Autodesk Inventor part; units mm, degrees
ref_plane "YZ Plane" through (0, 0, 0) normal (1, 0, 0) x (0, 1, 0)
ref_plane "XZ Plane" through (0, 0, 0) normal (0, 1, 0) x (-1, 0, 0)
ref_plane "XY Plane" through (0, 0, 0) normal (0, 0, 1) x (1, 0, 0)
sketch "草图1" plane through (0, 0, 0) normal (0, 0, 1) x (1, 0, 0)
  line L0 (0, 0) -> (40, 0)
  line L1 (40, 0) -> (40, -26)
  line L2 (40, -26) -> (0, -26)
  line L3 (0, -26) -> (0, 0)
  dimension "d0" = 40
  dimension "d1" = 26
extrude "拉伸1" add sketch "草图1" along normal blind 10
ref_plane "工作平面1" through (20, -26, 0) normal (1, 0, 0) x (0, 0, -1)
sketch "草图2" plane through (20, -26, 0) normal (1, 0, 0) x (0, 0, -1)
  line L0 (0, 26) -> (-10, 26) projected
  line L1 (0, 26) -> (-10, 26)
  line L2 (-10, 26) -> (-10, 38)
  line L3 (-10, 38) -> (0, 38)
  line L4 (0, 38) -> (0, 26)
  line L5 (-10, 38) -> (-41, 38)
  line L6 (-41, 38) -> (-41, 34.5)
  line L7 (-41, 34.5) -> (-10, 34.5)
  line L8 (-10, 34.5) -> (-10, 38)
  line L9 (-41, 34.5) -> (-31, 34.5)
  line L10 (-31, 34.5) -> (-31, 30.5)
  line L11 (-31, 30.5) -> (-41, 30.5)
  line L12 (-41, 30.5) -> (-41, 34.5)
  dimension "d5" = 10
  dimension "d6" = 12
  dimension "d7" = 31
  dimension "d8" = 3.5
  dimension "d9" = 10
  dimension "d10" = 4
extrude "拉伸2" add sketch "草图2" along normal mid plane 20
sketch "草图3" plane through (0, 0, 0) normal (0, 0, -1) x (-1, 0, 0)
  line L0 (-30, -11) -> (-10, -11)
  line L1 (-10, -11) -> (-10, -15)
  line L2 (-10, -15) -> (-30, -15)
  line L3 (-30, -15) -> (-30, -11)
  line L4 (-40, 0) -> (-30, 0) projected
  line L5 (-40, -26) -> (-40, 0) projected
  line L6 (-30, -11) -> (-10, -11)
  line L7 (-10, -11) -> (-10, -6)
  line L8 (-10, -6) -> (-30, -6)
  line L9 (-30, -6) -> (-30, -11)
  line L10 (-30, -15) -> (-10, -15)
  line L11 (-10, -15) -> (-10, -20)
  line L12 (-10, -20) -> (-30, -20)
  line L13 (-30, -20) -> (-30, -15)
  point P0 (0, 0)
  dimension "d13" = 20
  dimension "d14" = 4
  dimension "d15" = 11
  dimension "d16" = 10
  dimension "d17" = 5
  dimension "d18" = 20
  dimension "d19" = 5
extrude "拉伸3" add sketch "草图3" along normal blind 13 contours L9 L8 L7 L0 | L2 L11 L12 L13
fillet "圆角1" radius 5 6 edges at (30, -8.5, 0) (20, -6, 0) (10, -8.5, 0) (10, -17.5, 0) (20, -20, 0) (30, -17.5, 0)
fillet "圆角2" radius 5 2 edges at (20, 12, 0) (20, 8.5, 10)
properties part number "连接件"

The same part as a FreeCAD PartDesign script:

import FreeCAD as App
import Part
import Sketcher
from FreeCAD import Vector


def edges_at(feature, points):
    """Names of the edges that pass closest to the given points."""
    edges = feature.Shape.Edges
    near = lambda p: min(range(len(edges)), key=lambda i: edges[i].distToShape(Part.Vertex(*p))[0])
    return sorted({f"Edge{near(p) + 1}" for p in points})


def add_polygon(sketch, points):
    """Adds a closed chain of lines whose ends are joined by coincident constraints."""
    first, n = sketch.GeometryCount, len(points)
    for a, b in zip(points, points[1:] + points[:1]):
        sketch.addGeometry(Part.LineSegment(App.Vector(*a, 0), App.Vector(*b, 0)), False)
    for i in range(n):
        sketch.addConstraint(Sketcher.Constraint("Coincident", first + i, 2, first + (i + 1) % n, 1))

doc = App.newDocument("Part")
body = doc.addObject("PartDesign::Body", "Body")

# Sketch on XY plane
sketch1 = doc.addObject("Sketcher::SketchObject", "Sketch")
body.addObject(sketch1)
sketch1.AttachmentSupport = (doc.XY_Plane, [""])
sketch1.MapMode = "FlatFace"
add_polygon(sketch1, [(40, 0), (0, 0), (0, -26), (40, -26)])  # lines 0-3
sketch1.addConstraint(Sketcher.Constraint("Horizontal", 0))
sketch1.addConstraint(Sketcher.Constraint("Vertical", 1))
sketch1.addConstraint(Sketcher.Constraint("Horizontal", 2))
sketch1.addConstraint(Sketcher.Constraint("Vertical", 3))
sketch1.addConstraint(Sketcher.Constraint("Coincident", 0, 2, -1, 1))
sketch1.addConstraint(Sketcher.Constraint("DistanceX", 0, 2, 0, 1, 40.0))
sketch1.addConstraint(Sketcher.Constraint("DistanceY", 1, 2, 1, 1, 26.0))
pad1 = doc.addObject("PartDesign::Pad", "Pad")
body.addObject(pad1)
pad1.Profile = sketch1
pad1.Length = 10

# Sketch on YZ plane
sketch2 = doc.addObject("Sketcher::SketchObject", "Sketch001")
body.addObject(sketch2)
sketch2.AttachmentSupport = (doc.YZ_Plane, [""])
sketch2.MapMode = "FlatFace"
sketch2.AttachmentOffset = App.Placement(Vector(0, 0, 20), App.Rotation())
add_polygon(sketch2, [(0, 10), (0, 0), (12, 0), (12, 41), (4.5, 41), (4.5, 31), (8.5, 31), (8.5, 10)])  # lines 0-7
sketch2.addConstraint(Sketcher.Constraint("Vertical", 0))
sketch2.addConstraint(Sketcher.Constraint("Horizontal", 1))
sketch2.addConstraint(Sketcher.Constraint("Vertical", 2))
sketch2.addConstraint(Sketcher.Constraint("Horizontal", 3))
sketch2.addConstraint(Sketcher.Constraint("Vertical", 4))
sketch2.addConstraint(Sketcher.Constraint("Horizontal", 5))
sketch2.addConstraint(Sketcher.Constraint("Vertical", 6))
sketch2.addConstraint(Sketcher.Constraint("Horizontal", 7))
sketch2.addConstraint(Sketcher.Constraint("Coincident", 0, 2, -1, 1))
sketch2.addConstraint(Sketcher.Constraint("Equal", 0, 4))
sketch2.addConstraint(Sketcher.Constraint("DistanceX", 1, 1, 1, 2, 12.0))
sketch2.addConstraint(Sketcher.Constraint("DistanceX", 5, 1, 5, 2, 4.0))
sketch2.addConstraint(Sketcher.Constraint("DistanceY", 0, 2, 0, 1, 10.0))
sketch2.addConstraint(Sketcher.Constraint("DistanceY", -1, 1, 4, 2, 31.0))
sketch2.addConstraint(Sketcher.Constraint("DistanceX", 5, 2, 2, 2, 3.5))
pad2 = doc.addObject("PartDesign::Pad", "Pad001")
body.addObject(pad2)
pad2.Profile = sketch2
pad2.Length = 20
pad2.Midplane = True

# Sketch on XY plane
sketch3 = doc.addObject("Sketcher::SketchObject", "Sketch002")
body.addObject(sketch3)
sketch3.AttachmentSupport = (doc.XY_Plane, [""])
sketch3.MapMode = "FlatFace"
add_polygon(sketch3, [(30, -6), (30, -11), (10, -11), (10, -6)])  # lines 0-3
add_polygon(sketch3, [(10, -15), (30, -15), (30, -20), (10, -20)])  # lines 4-7
sketch3.addConstraint(Sketcher.Constraint("Vertical", 0))
sketch3.addConstraint(Sketcher.Constraint("Horizontal", 1))
sketch3.addConstraint(Sketcher.Constraint("Vertical", 2))
sketch3.addConstraint(Sketcher.Constraint("Horizontal", 3))
sketch3.addConstraint(Sketcher.Constraint("Horizontal", 4))
sketch3.addConstraint(Sketcher.Constraint("Vertical", 5))
sketch3.addConstraint(Sketcher.Constraint("Horizontal", 6))
sketch3.addConstraint(Sketcher.Constraint("Vertical", 7))
sketch3.addConstraint(Sketcher.Constraint("Vertical", 3, 2, 4, 2))
sketch3.addConstraint(Sketcher.Constraint("Vertical", 2, 2, 6, 2))
sketch3.addConstraint(Sketcher.Constraint("Equal", 2, 5))
sketch3.addConstraint(Sketcher.Constraint("DistanceX", 1, 2, 1, 1, 20.0))
sketch3.addConstraint(Sketcher.Constraint("DistanceY", 0, 2, 0, 1, 5.0))
sketch3.addConstraint(Sketcher.Constraint("DistanceY", 0, 2, -1, 1, 11.0))
sketch3.addConstraint(Sketcher.Constraint("DistanceX", -1, 1, 1, 2, 10.0))
sketch3.addConstraint(Sketcher.Constraint("DistanceY", 5, 2, -1, 1, 20.0))
pad3 = doc.addObject("PartDesign::Pad", "Pad002")
body.addObject(pad3)
pad3.Profile = sketch3
pad3.Length = 13
pad3.Reversed = True
doc.recompute()

fillet = doc.addObject("PartDesign::Fillet", "Fillet")
body.addObject(fillet)
fillet.Base = (pad3, edges_at(pad3, [
    (30, -8.5, 0),
    (20, -6, 0),
    (10, -8.5, 0),
    (10, -17.5, 0),
    (20, -20, 0),
    (30, -17.5, 0),
]))
fillet.Radius = 5
doc.recompute()

fillet2 = doc.addObject("PartDesign::Fillet", "Fillet001")
body.addObject(fillet2)
fillet2.Base = (fillet, edges_at(fillet, [(20, 12, 0), (20, 8.5, 10)]))
fillet2.Radius = 5

doc.recompute()
